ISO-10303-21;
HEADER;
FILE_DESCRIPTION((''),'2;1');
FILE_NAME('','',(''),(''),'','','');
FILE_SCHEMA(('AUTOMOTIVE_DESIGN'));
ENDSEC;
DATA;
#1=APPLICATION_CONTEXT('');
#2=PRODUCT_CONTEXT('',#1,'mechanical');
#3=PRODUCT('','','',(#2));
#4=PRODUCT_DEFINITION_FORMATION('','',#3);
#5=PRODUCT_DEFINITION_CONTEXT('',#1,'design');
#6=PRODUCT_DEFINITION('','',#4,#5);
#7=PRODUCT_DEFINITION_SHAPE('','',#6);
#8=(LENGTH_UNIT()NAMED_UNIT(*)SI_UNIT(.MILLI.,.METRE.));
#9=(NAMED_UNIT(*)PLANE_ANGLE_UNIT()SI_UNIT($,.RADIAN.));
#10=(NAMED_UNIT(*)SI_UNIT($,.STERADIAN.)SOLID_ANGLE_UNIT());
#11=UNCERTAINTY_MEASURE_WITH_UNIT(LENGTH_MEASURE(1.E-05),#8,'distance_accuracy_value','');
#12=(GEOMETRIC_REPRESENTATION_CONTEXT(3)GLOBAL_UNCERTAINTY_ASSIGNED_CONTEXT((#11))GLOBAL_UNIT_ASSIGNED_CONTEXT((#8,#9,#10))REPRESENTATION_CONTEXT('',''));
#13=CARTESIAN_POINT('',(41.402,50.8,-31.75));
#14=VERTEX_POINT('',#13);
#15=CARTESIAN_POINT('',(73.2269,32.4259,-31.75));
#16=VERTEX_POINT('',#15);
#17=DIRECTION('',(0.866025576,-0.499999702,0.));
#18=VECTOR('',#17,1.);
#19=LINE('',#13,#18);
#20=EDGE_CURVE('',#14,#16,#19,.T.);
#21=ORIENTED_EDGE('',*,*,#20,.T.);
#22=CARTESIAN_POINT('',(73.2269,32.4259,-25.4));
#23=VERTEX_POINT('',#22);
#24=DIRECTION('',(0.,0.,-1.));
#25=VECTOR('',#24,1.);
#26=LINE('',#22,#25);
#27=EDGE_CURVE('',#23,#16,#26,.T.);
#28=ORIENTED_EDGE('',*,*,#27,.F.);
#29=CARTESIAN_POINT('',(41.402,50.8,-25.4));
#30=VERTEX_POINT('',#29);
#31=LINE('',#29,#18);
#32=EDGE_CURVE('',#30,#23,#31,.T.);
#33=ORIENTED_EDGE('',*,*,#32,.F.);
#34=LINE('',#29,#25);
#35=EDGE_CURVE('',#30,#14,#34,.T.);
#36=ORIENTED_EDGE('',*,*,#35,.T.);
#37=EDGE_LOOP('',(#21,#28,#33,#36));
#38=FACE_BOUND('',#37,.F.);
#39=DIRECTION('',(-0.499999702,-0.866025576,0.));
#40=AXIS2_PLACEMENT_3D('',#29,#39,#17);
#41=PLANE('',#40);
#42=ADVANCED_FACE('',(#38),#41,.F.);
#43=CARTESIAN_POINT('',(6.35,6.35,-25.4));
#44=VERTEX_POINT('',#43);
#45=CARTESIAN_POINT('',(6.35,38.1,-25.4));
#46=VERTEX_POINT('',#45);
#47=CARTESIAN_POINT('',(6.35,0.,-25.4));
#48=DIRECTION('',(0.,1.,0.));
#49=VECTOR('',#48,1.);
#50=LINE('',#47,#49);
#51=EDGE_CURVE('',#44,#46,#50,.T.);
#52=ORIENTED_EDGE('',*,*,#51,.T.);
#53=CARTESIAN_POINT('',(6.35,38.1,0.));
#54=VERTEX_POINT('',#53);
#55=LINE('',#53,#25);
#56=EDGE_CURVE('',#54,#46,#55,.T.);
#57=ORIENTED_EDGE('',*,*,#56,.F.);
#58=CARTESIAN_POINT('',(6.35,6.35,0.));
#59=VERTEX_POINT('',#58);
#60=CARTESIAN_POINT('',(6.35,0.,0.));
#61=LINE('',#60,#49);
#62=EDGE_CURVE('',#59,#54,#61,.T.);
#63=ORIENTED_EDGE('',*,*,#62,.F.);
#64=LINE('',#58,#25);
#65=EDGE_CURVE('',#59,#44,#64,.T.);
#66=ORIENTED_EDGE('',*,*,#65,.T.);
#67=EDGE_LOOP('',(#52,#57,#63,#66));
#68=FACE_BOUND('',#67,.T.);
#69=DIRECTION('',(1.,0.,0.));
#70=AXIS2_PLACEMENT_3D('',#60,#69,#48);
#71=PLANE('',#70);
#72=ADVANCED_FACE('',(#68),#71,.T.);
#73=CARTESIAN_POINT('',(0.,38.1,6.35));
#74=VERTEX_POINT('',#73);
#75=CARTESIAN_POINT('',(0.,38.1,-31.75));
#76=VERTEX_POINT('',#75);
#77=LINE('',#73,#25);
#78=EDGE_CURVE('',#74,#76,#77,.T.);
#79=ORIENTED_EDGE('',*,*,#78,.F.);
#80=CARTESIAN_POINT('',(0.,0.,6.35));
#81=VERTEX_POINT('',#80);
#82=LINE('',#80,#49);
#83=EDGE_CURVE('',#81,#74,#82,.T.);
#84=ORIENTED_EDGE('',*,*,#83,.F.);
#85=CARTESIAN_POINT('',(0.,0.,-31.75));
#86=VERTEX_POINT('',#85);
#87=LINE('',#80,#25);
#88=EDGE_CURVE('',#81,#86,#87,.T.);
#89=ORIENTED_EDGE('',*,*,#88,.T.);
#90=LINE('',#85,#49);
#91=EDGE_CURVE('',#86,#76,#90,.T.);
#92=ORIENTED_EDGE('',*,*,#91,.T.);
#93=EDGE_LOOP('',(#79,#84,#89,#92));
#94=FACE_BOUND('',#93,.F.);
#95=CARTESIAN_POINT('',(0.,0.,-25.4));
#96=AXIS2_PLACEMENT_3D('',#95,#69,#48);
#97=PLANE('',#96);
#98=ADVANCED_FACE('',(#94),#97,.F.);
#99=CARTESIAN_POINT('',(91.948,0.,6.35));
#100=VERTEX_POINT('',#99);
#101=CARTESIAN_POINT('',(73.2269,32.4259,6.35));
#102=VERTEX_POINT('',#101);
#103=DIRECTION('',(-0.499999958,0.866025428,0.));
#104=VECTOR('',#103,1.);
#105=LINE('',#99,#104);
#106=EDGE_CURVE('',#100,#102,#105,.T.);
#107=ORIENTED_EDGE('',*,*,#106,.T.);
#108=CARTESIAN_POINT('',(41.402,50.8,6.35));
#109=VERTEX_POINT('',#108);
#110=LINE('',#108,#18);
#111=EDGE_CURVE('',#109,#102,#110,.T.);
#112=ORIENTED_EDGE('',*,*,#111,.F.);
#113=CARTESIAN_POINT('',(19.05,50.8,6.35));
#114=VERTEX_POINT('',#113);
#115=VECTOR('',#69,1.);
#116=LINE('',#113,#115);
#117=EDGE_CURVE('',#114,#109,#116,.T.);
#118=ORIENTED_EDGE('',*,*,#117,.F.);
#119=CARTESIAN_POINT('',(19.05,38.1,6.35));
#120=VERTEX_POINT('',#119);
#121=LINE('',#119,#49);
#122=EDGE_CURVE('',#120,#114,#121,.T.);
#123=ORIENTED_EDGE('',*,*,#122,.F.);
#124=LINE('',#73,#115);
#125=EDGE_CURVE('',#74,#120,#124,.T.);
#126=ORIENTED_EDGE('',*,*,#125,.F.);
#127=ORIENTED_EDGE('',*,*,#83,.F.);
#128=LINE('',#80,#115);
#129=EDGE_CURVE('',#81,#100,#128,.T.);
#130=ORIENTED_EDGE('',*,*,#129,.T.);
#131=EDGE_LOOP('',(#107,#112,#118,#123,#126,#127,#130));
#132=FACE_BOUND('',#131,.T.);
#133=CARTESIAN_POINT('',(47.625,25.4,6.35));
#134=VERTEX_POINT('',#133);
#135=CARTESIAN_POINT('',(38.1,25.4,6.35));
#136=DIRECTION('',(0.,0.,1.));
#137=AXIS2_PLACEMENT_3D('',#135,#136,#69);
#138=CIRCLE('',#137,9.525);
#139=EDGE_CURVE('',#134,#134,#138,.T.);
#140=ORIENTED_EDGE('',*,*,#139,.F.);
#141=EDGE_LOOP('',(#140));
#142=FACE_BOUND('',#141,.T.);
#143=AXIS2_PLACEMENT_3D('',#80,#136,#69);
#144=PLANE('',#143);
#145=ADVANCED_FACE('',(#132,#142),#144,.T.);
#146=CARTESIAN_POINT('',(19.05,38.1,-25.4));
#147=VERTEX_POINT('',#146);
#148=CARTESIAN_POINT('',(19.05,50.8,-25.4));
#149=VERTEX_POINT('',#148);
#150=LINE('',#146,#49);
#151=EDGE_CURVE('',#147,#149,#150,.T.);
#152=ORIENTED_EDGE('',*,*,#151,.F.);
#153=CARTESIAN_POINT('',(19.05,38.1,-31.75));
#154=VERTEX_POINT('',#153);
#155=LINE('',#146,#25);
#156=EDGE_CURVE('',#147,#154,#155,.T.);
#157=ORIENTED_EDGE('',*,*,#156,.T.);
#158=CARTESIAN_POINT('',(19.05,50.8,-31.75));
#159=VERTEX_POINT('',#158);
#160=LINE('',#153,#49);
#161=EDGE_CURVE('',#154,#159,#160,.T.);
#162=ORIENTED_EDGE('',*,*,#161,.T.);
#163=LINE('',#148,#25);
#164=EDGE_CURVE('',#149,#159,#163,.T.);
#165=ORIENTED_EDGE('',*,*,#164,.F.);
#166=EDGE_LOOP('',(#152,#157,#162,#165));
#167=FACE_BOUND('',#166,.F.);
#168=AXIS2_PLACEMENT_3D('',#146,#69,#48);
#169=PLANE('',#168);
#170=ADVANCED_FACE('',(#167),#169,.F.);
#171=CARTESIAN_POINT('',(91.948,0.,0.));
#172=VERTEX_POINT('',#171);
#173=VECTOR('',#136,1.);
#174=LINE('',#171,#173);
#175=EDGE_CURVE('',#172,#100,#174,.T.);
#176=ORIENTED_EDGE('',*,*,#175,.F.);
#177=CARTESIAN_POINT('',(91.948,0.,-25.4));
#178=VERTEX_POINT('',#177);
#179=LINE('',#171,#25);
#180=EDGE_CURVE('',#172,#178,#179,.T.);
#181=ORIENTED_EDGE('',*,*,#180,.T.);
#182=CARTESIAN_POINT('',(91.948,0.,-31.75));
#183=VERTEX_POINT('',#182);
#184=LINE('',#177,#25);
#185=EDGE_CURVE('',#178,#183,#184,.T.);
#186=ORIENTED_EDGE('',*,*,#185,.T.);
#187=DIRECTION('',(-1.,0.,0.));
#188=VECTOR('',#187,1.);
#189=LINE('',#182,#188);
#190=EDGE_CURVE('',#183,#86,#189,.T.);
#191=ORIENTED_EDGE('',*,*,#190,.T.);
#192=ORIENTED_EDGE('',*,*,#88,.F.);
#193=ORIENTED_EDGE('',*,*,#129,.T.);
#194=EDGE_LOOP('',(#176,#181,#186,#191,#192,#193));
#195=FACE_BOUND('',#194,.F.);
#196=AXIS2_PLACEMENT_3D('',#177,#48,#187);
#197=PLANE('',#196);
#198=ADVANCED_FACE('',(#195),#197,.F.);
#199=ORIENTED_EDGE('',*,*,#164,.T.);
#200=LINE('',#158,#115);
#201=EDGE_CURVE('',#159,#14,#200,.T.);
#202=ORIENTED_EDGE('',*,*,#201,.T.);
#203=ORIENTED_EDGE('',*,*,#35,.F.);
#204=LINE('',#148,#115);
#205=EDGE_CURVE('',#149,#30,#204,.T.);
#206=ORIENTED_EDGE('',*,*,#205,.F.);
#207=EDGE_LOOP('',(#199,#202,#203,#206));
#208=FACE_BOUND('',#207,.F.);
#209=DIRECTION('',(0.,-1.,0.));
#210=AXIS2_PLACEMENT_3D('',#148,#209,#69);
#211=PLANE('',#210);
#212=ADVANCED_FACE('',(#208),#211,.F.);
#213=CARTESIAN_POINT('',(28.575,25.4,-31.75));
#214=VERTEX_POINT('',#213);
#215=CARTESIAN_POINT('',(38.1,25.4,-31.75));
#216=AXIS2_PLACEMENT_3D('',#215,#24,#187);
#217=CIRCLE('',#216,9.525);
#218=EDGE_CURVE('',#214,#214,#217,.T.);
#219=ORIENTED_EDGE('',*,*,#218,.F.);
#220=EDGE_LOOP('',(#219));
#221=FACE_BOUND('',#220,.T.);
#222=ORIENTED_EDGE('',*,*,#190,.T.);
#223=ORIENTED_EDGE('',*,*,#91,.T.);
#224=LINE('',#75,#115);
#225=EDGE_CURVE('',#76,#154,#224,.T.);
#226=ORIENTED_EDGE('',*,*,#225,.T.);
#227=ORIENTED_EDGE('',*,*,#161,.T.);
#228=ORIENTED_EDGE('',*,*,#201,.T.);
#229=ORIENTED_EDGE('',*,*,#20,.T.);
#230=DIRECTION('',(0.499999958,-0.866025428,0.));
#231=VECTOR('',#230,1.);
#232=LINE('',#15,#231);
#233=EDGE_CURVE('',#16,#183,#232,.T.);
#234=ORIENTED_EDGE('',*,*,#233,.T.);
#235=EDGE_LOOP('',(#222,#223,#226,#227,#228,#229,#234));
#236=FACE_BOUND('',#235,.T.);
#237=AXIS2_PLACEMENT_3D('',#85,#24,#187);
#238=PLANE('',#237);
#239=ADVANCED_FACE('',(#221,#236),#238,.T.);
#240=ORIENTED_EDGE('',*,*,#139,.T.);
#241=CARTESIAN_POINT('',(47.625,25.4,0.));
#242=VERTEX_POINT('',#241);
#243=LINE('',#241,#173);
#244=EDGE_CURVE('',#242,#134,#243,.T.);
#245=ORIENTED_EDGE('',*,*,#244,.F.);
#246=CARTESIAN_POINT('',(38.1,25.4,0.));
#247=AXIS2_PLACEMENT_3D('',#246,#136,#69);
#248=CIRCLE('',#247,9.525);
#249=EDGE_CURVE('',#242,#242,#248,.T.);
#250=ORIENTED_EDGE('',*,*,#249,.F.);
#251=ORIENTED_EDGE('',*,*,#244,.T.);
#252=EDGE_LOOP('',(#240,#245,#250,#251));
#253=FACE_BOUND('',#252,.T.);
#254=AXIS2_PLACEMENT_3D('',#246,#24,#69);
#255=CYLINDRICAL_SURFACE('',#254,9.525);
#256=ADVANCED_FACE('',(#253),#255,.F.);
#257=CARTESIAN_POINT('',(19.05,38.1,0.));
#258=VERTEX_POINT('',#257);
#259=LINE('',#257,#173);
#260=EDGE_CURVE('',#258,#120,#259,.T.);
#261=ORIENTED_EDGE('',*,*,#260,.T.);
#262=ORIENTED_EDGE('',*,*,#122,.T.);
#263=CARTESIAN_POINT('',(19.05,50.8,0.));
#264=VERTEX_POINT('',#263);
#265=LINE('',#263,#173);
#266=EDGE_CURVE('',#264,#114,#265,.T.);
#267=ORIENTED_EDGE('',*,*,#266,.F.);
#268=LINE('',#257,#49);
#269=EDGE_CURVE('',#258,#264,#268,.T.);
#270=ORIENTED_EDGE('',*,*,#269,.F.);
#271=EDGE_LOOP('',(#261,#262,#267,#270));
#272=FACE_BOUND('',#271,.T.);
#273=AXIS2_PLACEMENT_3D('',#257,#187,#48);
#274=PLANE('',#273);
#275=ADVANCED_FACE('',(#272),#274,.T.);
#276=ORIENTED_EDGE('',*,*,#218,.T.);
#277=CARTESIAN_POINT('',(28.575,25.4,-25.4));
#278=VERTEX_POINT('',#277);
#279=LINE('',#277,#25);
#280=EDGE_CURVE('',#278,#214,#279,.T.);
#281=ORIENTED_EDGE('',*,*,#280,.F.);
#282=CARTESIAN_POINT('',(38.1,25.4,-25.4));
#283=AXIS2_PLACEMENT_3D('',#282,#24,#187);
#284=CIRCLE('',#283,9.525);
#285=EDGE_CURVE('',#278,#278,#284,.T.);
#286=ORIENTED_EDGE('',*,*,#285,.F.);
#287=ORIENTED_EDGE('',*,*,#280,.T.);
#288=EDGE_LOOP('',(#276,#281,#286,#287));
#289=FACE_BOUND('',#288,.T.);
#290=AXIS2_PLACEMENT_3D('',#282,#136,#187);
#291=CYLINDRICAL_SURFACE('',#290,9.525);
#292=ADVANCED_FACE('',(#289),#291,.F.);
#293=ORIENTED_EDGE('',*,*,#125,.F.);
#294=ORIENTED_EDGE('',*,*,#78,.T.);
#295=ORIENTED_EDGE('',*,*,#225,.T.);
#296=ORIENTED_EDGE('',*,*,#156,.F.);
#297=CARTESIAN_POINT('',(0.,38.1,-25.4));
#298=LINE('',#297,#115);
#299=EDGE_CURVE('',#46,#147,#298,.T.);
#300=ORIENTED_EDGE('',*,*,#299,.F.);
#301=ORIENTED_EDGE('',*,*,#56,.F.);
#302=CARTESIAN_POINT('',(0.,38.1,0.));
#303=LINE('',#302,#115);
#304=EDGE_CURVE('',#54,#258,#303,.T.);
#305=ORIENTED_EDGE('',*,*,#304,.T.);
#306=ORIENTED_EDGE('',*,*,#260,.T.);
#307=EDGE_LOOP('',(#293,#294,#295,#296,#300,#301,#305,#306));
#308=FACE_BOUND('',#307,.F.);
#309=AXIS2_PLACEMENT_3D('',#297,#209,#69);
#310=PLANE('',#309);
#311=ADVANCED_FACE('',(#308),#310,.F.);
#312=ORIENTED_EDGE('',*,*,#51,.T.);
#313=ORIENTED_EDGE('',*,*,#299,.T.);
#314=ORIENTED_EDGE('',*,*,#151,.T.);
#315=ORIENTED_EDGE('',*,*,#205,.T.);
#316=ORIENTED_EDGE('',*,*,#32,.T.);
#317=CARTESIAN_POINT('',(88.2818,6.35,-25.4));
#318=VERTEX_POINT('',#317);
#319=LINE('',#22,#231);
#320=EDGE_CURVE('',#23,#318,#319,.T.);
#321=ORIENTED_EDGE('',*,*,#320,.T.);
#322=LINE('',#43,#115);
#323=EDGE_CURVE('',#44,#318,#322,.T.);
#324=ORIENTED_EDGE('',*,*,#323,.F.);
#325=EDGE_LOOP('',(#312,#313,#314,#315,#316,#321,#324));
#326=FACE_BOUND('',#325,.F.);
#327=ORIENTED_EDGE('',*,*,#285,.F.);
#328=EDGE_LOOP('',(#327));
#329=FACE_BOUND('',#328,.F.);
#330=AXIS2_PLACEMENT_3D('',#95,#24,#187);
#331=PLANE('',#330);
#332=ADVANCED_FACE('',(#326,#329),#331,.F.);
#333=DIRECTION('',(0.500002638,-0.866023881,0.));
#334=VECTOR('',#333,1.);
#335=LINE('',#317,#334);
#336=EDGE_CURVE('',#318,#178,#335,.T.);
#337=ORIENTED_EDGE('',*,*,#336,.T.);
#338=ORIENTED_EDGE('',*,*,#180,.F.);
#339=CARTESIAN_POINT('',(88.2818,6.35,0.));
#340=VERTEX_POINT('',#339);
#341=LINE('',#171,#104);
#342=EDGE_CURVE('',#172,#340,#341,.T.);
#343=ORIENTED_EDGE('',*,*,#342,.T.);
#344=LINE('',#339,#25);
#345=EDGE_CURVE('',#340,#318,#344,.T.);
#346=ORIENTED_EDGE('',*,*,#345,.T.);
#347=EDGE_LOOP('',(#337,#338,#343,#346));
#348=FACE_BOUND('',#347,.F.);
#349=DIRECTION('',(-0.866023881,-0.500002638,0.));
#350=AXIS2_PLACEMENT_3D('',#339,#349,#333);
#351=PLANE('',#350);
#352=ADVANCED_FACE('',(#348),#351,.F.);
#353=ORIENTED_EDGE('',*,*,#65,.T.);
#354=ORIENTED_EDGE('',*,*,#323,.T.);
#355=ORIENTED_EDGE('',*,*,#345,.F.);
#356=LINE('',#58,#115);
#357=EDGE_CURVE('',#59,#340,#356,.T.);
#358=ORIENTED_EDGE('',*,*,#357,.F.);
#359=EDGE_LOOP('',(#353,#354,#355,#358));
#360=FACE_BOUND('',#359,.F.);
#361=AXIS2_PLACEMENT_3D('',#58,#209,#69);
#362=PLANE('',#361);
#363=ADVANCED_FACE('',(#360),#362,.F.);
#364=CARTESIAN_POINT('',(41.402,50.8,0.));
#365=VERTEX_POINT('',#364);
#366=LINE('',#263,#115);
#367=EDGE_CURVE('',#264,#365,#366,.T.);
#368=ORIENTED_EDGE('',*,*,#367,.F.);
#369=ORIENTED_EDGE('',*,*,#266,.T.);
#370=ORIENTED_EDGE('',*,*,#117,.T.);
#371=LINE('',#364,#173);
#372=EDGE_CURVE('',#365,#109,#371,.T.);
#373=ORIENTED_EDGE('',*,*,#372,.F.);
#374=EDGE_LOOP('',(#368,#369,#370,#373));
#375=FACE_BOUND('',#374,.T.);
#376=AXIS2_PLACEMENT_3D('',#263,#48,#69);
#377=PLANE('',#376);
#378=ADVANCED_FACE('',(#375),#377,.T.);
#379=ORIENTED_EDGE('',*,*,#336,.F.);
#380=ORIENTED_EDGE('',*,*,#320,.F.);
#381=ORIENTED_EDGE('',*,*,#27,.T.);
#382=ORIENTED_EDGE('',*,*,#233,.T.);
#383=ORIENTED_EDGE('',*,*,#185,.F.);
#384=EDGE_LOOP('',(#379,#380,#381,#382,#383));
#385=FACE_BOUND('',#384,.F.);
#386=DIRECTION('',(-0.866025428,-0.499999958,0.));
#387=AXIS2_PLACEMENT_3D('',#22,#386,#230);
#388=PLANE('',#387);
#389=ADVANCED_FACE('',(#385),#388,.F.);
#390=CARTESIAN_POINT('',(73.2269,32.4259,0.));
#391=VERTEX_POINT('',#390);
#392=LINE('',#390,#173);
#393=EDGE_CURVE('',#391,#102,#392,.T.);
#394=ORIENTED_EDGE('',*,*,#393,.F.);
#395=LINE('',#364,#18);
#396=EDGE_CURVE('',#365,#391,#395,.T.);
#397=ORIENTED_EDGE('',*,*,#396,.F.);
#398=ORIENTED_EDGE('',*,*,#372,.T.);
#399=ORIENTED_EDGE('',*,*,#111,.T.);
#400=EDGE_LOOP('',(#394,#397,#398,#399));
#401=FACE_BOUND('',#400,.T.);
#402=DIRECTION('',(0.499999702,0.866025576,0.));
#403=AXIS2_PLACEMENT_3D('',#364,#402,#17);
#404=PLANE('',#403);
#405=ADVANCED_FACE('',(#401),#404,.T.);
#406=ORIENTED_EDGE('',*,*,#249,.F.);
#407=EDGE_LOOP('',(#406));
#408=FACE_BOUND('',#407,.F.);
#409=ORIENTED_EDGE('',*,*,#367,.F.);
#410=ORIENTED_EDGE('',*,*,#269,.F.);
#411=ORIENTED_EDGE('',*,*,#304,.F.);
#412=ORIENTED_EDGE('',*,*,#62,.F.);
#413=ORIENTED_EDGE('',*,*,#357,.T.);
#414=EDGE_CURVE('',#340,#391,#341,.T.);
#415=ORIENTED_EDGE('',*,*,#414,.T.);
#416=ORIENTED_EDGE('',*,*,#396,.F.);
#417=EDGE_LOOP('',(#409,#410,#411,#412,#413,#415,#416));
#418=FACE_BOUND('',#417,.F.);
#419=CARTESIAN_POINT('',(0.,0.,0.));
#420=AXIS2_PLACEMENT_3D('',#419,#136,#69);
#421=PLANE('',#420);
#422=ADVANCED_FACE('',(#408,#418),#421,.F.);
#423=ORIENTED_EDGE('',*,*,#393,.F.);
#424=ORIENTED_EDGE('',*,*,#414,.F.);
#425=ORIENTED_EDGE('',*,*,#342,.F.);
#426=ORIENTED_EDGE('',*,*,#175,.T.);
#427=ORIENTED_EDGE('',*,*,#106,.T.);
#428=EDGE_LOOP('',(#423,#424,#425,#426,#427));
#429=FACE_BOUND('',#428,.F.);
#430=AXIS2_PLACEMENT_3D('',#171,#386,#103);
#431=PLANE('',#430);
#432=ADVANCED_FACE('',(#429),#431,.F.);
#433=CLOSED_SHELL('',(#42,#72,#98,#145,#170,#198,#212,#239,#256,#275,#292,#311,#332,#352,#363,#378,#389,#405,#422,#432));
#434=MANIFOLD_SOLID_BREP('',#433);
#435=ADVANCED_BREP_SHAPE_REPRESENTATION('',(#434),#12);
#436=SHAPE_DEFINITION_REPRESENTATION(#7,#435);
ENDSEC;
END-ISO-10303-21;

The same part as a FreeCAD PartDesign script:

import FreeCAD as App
import Part
import Sketcher
from FreeCAD import Vector
Q = App.Units.Quantity

doc = App.newDocument("Part")
body = doc.addObject("PartDesign::Body", "Body")

# Sketch on XY plane
sketch1 = body.newObject("Sketcher::SketchObject", "Sketch")
sketch1.AttachmentSupport = (doc.getObject("XY_Plane"), [""])
sketch1.MapMode = "FlatFace"
sketch1.addGeometry([
    Part.LineSegment(Vector(0, 38, 0), Vector(0, 0, 0)),  # 0
    Part.LineSegment(Vector(0, 0, 0), Vector(92, 0, 0)),  # 1
    Part.LineSegment(Vector(92, 0, 0), Vector(73, 32, 0)),  # 2
    Part.LineSegment(Vector(73, 32, 0), Vector(41, 51, 0)),  # 3
    Part.LineSegment(Vector(41, 51, 0), Vector(19, 51, 0)),  # 4
    Part.LineSegment(Vector(19, 51, 0), Vector(19, 38, 0)),  # 5
    Part.LineSegment(Vector(19, 38, 0), Vector(0, 38, 0)),  # 6
    Part.Circle(Vector(38, 25, 0), Vector(0, 0, 1), 10),  # 7
], False)
sketch1.addConstraint([
    Sketcher.Constraint("Coincident", 0, 2, 1, 1),
    Sketcher.Constraint("Coincident", 1, 2, 2, 1),
    Sketcher.Constraint("Coincident", 2, 2, 3, 1),
    Sketcher.Constraint("Coincident", 3, 2, 4, 1),
    Sketcher.Constraint("Coincident", 4, 2, 5, 1),
    Sketcher.Constraint("Coincident", 5, 2, 6, 1),
    Sketcher.Constraint("Coincident", 6, 2, 0, 1),
    Sketcher.Constraint("Vertical", 0),
    Sketcher.Constraint("Horizontal", 1),
    Sketcher.Constraint("Horizontal", 4),
    Sketcher.Constraint("Vertical", 5),
    Sketcher.Constraint("Horizontal", 6),
    Sketcher.Constraint("Coincident", 0, 2, -1, 1),
    Sketcher.Constraint("Diameter", 7, Q("0.75 in")),
    Sketcher.Constraint("DistanceY", 0, 2, 0, 1, Q("1.5 in")),
    Sketcher.Constraint("DistanceY", 5, 2, 5, 1, Q("0.5 in")),
    Sketcher.Constraint("DistanceY", -1, 1, 7, 3, Q("1 in")),
    Sketcher.Constraint("DistanceX", 6, 2, 6, 1, Q("0.75 in")),
    Sketcher.Constraint("DistanceX", -1, 1, 7, 3, Q("1.5 in")),
    Sketcher.Constraint("DistanceX", -1, 1, 3, 2, Q("1.63 in")),
    Sketcher.Constraint("Angle", 2, Q("120 deg")),
    Sketcher.Constraint("Angle", 3, Q("150 deg")),
    Sketcher.Constraint("DistanceX", 1, 1, 1, 2, Q("3.62 in")),
])
pad1 = body.newObject("PartDesign::Pad", "Pad")
pad1.Profile = sketch1
pad1.Length = Q("0.25 in")

# Sketch on XY plane
sketch2 = body.newObject("Sketcher::SketchObject", "Sketch001")
sketch2.AttachmentSupport = (doc.getObject("XY_Plane"), [""])
sketch2.MapMode = "FlatFace"
sketch2.addGeometry([
    Part.LineSegment(Vector(0, 38, 0), Vector(6, 38, 0)),
    Part.LineSegment(Vector(6, 38, 0), Vector(6, 0, 0)),
    Part.LineSegment(Vector(6, 0, 0), Vector(0, 0, 0)),
    Part.LineSegment(Vector(0, 0, 0), Vector(0, 38, 0)),
], False)
sketch2.addConstraint([
    Sketcher.Constraint("Coincident", 0, 2, 1, 1),
    Sketcher.Constraint("Coincident", 1, 2, 2, 1),
    Sketcher.Constraint("Coincident", 2, 2, 3, 1),
    Sketcher.Constraint("Coincident", 3, 2, 0, 1),
    Sketcher.Constraint("Horizontal", 0),
    Sketcher.Constraint("Vertical", 1),
    Sketcher.Constraint("Horizontal", 2),
    Sketcher.Constraint("Vertical", 3),
    Sketcher.Constraint("Coincident", 2, 2, -1, 1),
    Sketcher.Constraint("DistanceX", 0, 1, 0, 2, Q("0.25 in")),
    Sketcher.Constraint("DistanceY", 1, 2, 1, 1, Q("1.5 in")),
])
pad2 = body.newObject("PartDesign::Pad", "Pad001")
pad2.Profile = sketch2
pad2.Length = Q("1 in")
pad2.Reversed = True

# Sketch on XY plane
sketch3 = body.newObject("Sketcher::SketchObject", "Sketch002")
sketch3.AttachmentSupport = (doc.getObject("XY_Plane"), [""])
sketch3.MapMode = "FlatFace"
sketch3.addGeometry([
    Part.LineSegment(Vector(92, 0, 0), Vector(6, 0, 0)),
    Part.LineSegment(Vector(6, 0, 0), Vector(6, 6, 0)),
    Part.LineSegment(Vector(6, 6, 0), Vector(88, 6, 0)),
    Part.LineSegment(Vector(88, 6, 0), Vector(92, 0, 0)),
], False)
sketch3.addConstraint([
    Sketcher.Constraint("Coincident", 0, 2, 1, 1),
    Sketcher.Constraint("Coincident", 1, 2, 2, 1),
    Sketcher.Constraint("Coincident", 2, 2, 3, 1),
    Sketcher.Constraint("Coincident", 3, 2, 0, 1),
    Sketcher.Constraint("Horizontal", 0),
    Sketcher.Constraint("Vertical", 1),
    Sketcher.Constraint("Horizontal", 2),
    Sketcher.Constraint("PointOnObject", 0, 2, -1),
    Sketcher.Constraint("DistanceY", 1, 1, 1, 2, Q("0.25 in")),
    Sketcher.Constraint("DistanceX", -1, 1, 0, 2, Q("0.25 in")),
    Sketcher.Constraint("Angle", 3, Q("-59.9998 deg")),
    Sketcher.Constraint("DistanceX", 0, 2, 0, 1, Q("3.37 in")),
])
pad3 = body.newObject("PartDesign::Pad", "Pad002")
pad3.Profile = sketch3
pad3.Length = Q("1 in")
pad3.Reversed = True

# Sketch on XY plane
sketch4 = body.newObject("Sketcher::SketchObject", "Sketch003")
sketch4.AttachmentSupport = (doc.getObject("XY_Plane"), [""])
sketch4.MapMode = "FlatFace"
sketch4.AttachmentOffset = App.Placement(Vector(0, 0, -1 * 25.4), App.Rotation())
sketch4.addGeometry([
    Part.LineSegment(Vector(92, 0, 0), Vector(0, 0, 0)),  # 0
    Part.LineSegment(Vector(0, 0, 0), Vector(0, 38, 0)),  # 1
    Part.LineSegment(Vector(0, 38, 0), Vector(19, 38, 0)),  # 2
    Part.LineSegment(Vector(19, 38, 0), Vector(19, 51, 0)),  # 3
    Part.LineSegment(Vector(19, 51, 0), Vector(41, 51, 0)),  # 4
    Part.LineSegment(Vector(41, 51, 0), Vector(73, 32, 0)),  # 5
    Part.LineSegment(Vector(73, 32, 0), Vector(92, 0, 0)),  # 6
    Part.Circle(Vector(38, 25, 0), Vector(0, 0, 1), 10),  # 7
], False)
sketch4.addConstraint([
    Sketcher.Constraint("Coincident", 0, 2, 1, 1),
    Sketcher.Constraint("Coincident", 1, 2, 2, 1),
    Sketcher.Constraint("Coincident", 2, 2, 3, 1),
    Sketcher.Constraint("Coincident", 3, 2, 4, 1),
    Sketcher.Constraint("Coincident", 4, 2, 5, 1),
    Sketcher.Constraint("Coincident", 5, 2, 6, 1),
    Sketcher.Constraint("Coincident", 6, 2, 0, 1),
    Sketcher.Constraint("Horizontal", 0),
    Sketcher.Constraint("Vertical", 1),
    Sketcher.Constraint("Horizontal", 2),
    Sketcher.Constraint("Vertical", 3),
    Sketcher.Constraint("Horizontal", 4),
    Sketcher.Constraint("Coincident", 0, 2, -1, 1),
    Sketcher.Constraint("Diameter", 7, Q("0.75 in")),
    Sketcher.Constraint("DistanceY", 1, 1, 1, 2, Q("1.5 in")),
    Sketcher.Constraint("DistanceY", -1, 1, 7, 3, Q("1 in")),
    Sketcher.Constraint("DistanceY", 7, 3, 3, 2, Q("1 in")),
    Sketcher.Constraint("DistanceX", 2, 1, 2, 2, Q("0.75 in")),
    Sketcher.Constraint("DistanceX", -1, 1, 7, 3, Q("1.5 in")),
    Sketcher.Constraint("Angle", 5, Q("-30 deg")),
    Sketcher.Constraint("Angle", 6, Q("-60 deg")),
    Sketcher.Constraint("DistanceX", 0, 2, 0, 1, Q("3.62 in")),
    Sketcher.Constraint("DistanceX", 4, 1, 4, 2, Q("0.88 in")),
])
pad4 = body.newObject("PartDesign::Pad", "Pad003")
pad4.Profile = sketch4
pad4.Length = Q("0.25 in")
pad4.Reversed = True

doc.recompute()
